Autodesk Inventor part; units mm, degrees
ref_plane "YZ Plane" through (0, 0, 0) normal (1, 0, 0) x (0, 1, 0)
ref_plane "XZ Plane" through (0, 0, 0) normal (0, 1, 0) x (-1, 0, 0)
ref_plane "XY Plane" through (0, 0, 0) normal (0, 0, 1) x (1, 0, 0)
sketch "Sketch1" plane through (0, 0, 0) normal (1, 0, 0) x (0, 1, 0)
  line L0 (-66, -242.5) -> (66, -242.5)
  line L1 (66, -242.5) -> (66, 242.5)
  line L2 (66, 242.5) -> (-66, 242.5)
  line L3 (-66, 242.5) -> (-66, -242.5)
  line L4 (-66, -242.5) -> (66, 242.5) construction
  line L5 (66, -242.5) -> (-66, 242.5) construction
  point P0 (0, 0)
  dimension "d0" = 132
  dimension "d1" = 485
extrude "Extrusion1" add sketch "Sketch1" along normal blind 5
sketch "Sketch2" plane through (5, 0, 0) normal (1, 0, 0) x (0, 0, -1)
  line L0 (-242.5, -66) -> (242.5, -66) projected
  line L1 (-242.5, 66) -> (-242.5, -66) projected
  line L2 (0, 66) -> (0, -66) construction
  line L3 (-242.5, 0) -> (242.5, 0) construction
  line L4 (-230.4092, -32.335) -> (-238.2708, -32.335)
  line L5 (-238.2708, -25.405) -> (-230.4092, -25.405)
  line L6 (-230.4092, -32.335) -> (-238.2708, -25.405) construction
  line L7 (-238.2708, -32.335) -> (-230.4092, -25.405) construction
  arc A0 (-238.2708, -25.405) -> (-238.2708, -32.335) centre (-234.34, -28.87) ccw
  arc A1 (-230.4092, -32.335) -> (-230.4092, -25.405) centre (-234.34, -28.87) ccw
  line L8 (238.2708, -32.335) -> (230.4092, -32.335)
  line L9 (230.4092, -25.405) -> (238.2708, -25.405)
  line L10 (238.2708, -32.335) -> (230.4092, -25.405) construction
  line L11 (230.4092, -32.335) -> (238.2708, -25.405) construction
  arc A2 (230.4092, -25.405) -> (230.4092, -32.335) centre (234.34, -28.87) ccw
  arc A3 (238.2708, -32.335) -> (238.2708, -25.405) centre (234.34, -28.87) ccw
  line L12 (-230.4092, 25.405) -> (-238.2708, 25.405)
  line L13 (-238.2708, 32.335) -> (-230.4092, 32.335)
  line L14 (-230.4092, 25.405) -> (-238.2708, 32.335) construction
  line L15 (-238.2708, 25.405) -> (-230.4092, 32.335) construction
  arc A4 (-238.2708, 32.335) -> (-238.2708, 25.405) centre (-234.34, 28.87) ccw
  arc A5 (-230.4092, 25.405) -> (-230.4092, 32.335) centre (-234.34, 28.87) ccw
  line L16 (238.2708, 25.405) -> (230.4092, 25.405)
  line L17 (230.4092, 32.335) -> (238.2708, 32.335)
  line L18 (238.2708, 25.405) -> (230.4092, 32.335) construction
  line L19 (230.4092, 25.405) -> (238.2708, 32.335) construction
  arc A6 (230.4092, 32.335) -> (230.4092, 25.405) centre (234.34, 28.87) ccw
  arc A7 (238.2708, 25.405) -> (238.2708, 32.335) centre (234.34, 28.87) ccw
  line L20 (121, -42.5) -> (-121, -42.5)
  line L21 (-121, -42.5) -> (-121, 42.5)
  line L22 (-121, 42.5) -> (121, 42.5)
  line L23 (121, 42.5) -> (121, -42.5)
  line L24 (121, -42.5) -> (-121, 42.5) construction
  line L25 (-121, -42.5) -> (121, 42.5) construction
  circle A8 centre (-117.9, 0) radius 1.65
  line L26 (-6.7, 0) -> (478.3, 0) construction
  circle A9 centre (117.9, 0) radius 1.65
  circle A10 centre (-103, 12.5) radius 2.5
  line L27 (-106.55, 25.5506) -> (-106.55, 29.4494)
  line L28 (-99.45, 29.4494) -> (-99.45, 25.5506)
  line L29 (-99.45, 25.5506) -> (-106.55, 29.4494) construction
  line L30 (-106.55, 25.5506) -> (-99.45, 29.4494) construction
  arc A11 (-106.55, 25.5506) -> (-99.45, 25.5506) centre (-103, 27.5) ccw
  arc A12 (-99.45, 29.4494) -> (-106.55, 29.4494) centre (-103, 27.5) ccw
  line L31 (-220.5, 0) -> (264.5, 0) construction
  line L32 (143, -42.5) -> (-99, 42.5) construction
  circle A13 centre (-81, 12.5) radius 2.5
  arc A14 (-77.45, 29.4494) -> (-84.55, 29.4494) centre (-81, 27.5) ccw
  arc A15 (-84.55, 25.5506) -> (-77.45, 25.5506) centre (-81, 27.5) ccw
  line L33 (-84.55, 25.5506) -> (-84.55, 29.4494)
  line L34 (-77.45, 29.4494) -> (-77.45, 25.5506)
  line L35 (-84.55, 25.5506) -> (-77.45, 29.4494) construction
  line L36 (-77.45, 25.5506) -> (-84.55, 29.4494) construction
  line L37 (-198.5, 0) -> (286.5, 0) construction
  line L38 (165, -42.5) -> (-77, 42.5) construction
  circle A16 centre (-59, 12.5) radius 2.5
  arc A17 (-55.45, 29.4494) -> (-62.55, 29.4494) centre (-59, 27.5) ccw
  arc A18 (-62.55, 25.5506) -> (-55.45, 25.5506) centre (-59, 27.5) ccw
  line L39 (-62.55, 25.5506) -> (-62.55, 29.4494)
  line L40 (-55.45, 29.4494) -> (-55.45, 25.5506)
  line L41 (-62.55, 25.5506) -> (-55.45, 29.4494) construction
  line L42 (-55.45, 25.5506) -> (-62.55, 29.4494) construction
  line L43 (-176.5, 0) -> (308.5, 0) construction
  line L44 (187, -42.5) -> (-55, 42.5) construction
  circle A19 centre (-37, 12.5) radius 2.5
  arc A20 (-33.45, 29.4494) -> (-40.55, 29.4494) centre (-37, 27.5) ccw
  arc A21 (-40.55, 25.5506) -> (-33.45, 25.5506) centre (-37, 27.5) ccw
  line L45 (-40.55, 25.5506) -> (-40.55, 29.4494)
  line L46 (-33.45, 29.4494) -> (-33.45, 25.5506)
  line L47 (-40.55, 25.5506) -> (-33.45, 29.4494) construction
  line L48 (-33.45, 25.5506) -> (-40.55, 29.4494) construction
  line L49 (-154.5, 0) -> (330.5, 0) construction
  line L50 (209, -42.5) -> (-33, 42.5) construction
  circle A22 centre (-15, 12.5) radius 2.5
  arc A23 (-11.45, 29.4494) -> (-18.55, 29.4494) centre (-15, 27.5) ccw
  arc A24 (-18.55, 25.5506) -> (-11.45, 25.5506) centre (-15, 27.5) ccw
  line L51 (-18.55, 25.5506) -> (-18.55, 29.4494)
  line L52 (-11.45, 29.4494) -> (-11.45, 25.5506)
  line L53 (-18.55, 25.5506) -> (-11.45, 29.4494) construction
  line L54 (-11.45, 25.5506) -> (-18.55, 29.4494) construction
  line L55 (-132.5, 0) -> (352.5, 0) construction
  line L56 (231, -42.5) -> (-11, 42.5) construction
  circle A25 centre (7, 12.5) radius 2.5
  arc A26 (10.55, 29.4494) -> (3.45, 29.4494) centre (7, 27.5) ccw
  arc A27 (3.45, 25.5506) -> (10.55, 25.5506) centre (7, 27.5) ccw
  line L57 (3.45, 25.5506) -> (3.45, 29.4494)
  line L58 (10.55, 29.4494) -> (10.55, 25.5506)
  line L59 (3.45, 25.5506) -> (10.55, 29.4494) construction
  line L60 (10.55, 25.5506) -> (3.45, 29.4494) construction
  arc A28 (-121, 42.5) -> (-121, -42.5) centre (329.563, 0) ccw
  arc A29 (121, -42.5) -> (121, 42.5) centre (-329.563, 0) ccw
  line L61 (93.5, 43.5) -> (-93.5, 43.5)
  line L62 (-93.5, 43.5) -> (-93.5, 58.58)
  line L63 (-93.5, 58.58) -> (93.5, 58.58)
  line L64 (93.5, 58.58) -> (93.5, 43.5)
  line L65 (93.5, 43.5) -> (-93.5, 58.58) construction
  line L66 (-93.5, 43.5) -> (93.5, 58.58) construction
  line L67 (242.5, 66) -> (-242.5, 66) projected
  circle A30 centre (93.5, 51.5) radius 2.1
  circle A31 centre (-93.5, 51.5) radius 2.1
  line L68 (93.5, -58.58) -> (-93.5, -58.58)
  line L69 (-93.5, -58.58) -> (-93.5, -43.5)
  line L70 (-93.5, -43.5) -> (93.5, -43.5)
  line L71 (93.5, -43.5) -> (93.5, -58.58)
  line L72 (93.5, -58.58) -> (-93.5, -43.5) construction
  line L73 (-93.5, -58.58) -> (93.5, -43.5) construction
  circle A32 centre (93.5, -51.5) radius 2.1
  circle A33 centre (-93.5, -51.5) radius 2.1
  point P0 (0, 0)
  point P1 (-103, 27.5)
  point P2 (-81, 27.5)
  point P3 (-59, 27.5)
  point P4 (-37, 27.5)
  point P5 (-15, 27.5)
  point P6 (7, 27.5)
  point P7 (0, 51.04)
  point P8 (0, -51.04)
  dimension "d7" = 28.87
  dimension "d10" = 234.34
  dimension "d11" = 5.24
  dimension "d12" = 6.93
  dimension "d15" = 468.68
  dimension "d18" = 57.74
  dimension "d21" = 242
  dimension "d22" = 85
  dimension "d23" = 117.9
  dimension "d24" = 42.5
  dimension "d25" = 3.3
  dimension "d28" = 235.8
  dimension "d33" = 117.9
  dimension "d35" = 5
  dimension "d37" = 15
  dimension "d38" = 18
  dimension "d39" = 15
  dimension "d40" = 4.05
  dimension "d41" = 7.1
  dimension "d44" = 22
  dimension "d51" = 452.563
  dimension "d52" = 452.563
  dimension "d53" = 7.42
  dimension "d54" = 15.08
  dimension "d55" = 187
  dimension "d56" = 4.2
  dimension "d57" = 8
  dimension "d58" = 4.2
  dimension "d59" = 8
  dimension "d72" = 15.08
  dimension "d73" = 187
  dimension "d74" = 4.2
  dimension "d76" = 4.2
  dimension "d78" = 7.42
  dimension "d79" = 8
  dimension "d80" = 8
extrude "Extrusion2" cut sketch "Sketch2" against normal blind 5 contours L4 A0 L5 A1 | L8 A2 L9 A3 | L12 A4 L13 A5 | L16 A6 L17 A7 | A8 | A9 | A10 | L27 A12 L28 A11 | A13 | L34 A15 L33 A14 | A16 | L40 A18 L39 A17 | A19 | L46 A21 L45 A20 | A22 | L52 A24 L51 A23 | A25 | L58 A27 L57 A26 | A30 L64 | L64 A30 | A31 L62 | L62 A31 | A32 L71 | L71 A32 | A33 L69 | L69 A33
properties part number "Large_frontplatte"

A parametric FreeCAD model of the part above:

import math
import FreeCAD as App
import Part
import Sketcher
Q = App.Units.Quantity


def add_polygon(sketch, points):
    """Adds a closed chain of lines whose ends are joined by coincident constraints."""
    first, n = sketch.GeometryCount, len(points)
    for a, b in zip(points, points[1:] + points[:1]):
        sketch.addGeometry(Part.LineSegment(App.Vector(*a, 0), App.Vector(*b, 0)), False)
    for i in range(n):
        sketch.addConstraint(Sketcher.Constraint("Coincident", first + i, 2, first + (i + 1) % n, 1))

doc = App.newDocument("Part")
body = doc.addObject("PartDesign::Body", "Body")

sketch1 = body.newObject("Sketcher::SketchObject", "Sketch")
sketch1.AttachmentSupport = (doc.getObject("YZ_Plane"), [""])
sketch1.MapMode = "FlatFace"
add_polygon(sketch1, [(-66, 242.5), (-66, -242.5), (66, -242.5), (66, 242.5)])
sketch1.addConstraint([
    Sketcher.Constraint("Vertical", 0),
    Sketcher.Constraint("Horizontal", 1),
    Sketcher.Constraint("Vertical", 2),
    Sketcher.Constraint("Horizontal", 3),
    Sketcher.Constraint("Symmetric", 0, 2, 2, 2, -1, 1),
    Sketcher.Constraint("DistanceX", 1, 1, 1, 2, Q("132 mm")),
    Sketcher.Constraint("DistanceY", 0, 2, 0, 1, Q("485 mm")),
])
pad1 = body.newObject("PartDesign::Pad", "Pad")
pad1.Profile = sketch1
pad1.Length = 5

sketch2 = body.newObject("Sketcher::SketchObject", "Sketch001")
sketch2.AttachmentSupport = (doc.getObject("YZ_Plane"), [""])
sketch2.MapMode = "FlatFace"
sketch2.AttachmentOffset = App.Placement(App.Vector(0, 0, 5), App.Rotation())
sketch2.addGeometry([
    Part.LineSegment(App.Vector(-32.335, 238.2708, 0), App.Vector(-32.335, 230.4092, 0)),
    Part.ArcOfCircle(Part.Circle(App.Vector(-28.87, 234.34, 0), App.Vector(0, 0, 1), 5.239982), math.radians(-131.396175), math.radians(-48.603825)),
    Part.LineSegment(App.Vector(-25.405, 230.4092, 0), App.Vector(-25.405, 238.2708, 0)),
    Part.ArcOfCircle(Part.Circle(App.Vector(-28.87, 234.34, 0), App.Vector(0, 0, 1), 5.239982), math.radians(48.603825), math.radians(131.396175)),
    Part.LineSegment(App.Vector(-32.335, -230.4092, 0), App.Vector(-32.335, -238.2708, 0)),
    Part.ArcOfCircle(Part.Circle(App.Vector(-28.87, -234.34, 0), App.Vector(0, 0, 1), 5.239982), math.radians(-131.396175), math.radians(-48.603825)),
    Part.LineSegment(App.Vector(-25.405, -238.2708, 0), App.Vector(-25.405, -230.4092, 0)),
    Part.ArcOfCircle(Part.Circle(App.Vector(-28.87, -234.34, 0), App.Vector(0, 0, 1), 5.239982), math.radians(48.603825), math.radians(131.396175)),
    Part.LineSegment(App.Vector(25.405, 238.2708, 0), App.Vector(25.405, 230.4092, 0)),
    Part.ArcOfCircle(Part.Circle(App.Vector(28.87, 234.34, 0), App.Vector(0, 0, 1), 5.239982), math.radians(-131.396175), math.radians(-48.603825)),
    Part.LineSegment(App.Vector(32.335, 230.4092, 0), App.Vector(32.335, 238.2708, 0)),
    Part.ArcOfCircle(Part.Circle(App.Vector(28.87, 234.34, 0), App.Vector(0, 0, 1), 5.239982), math.radians(48.603825), math.radians(131.396175)),
    Part.LineSegment(App.Vector(25.405, -230.4092, 0), App.Vector(25.405, -238.2708, 0)),
    Part.ArcOfCircle(Part.Circle(App.Vector(28.87, -234.34, 0), App.Vector(0, 0, 1), 5.239982), math.radians(-131.396175), math.radians(-48.603825)),
    Part.LineSegment(App.Vector(32.335, -238.2708, 0), App.Vector(32.335, -230.4092, 0)),
    Part.ArcOfCircle(Part.Circle(App.Vector(28.87, -234.34, 0), App.Vector(0, 0, 1), 5.239982), math.radians(48.603825), math.radians(131.396175)),
    Part.Circle(App.Vector(0, 117.9, 0), App.Vector(0, 0, 1), 1.65),
    Part.Circle(App.Vector(0, -117.9, 0), App.Vector(0, 0, 1), 1.65),
    Part.Circle(App.Vector(12.5, 103, 0), App.Vector(0, 0, 1), 2.5),
    Part.LineSegment(App.Vector(29.4494, 106.55, 0), App.Vector(25.5506, 106.55, 0)),
    Part.ArcOfCircle(Part.Circle(App.Vector(27.5, 103, 0), App.Vector(0, 0, 1), 4.05002), math.radians(118.772367), math.radians(241.227633)),
    Part.LineSegment(App.Vector(25.5506, 99.45, 0), App.Vector(29.4494, 99.45, 0)),
    Part.ArcOfCircle(Part.Circle(App.Vector(27.5, 103, 0), App.Vector(0, 0, 1), 4.05002), math.radians(-61.227633), math.radians(61.227633)),
    Part.Circle(App.Vector(12.5, 81, 0), App.Vector(0, 0, 1), 2.5),
    Part.LineSegment(App.Vector(25.5506, 77.45, 0), App.Vector(29.4494, 77.45, 0)),
    Part.ArcOfCircle(Part.Circle(App.Vector(27.5, 81, 0), App.Vector(0, 0, 1), 4.05002), math.radians(-61.227633), math.radians(61.227633)),
    Part.LineSegment(App.Vector(29.4494, 84.55, 0), App.Vector(25.5506, 84.55, 0)),
    Part.ArcOfCircle(Part.Circle(App.Vector(27.5, 81, 0), App.Vector(0, 0, 1), 4.05002), math.radians(118.772367), math.radians(241.227633)),
    Part.Circle(App.Vector(12.5, 59, 0), App.Vector(0, 0, 1), 2.5),
    Part.LineSegment(App.Vector(25.5506, 55.45, 0), App.Vector(29.4494, 55.45, 0)),
    Part.ArcOfCircle(Part.Circle(App.Vector(27.5, 59, 0), App.Vector(0, 0, 1), 4.05002), math.radians(-61.227633), math.radians(61.227633)),
    Part.LineSegment(App.Vector(29.4494, 62.55, 0), App.Vector(25.5506, 62.55, 0)),
    Part.ArcOfCircle(Part.Circle(App.Vector(27.5, 59, 0), App.Vector(0, 0, 1), 4.05002), math.radians(118.772367), math.radians(241.227633)),
    Part.Circle(App.Vector(12.5, 37, 0), App.Vector(0, 0, 1), 2.5),
    Part.LineSegment(App.Vector(25.5506, 33.45, 0), App.Vector(29.4494, 33.45, 0)),
    Part.ArcOfCircle(Part.Circle(App.Vector(27.5, 37, 0), App.Vector(0, 0, 1), 4.05002), math.radians(-61.227633), math.radians(61.227633)),
    Part.LineSegment(App.Vector(29.4494, 40.55, 0), App.Vector(25.5506, 40.55, 0)),
    Part.ArcOfCircle(Part.Circle(App.Vector(27.5, 37, 0), App.Vector(0, 0, 1), 4.05002), math.radians(118.772367), math.radians(241.227633)),
    Part.Circle(App.Vector(12.5, 15, 0), App.Vector(0, 0, 1), 2.5),
    Part.LineSegment(App.Vector(25.5506, 11.45, 0), App.Vector(29.4494, 11.45, 0)),
    Part.ArcOfCircle(Part.Circle(App.Vector(27.5, 15, 0), App.Vector(0, 0, 1), 4.05002), math.radians(-61.227633), math.radians(61.227633)),
    Part.LineSegment(App.Vector(29.4494, 18.55, 0), App.Vector(25.5506, 18.55, 0)),
    Part.ArcOfCircle(Part.Circle(App.Vector(27.5, 15, 0), App.Vector(0, 0, 1), 4.05002), math.radians(118.772367), math.radians(241.227633)),
    Part.Circle(App.Vector(12.5, -7, 0), App.Vector(0, 0, 1), 2.5),
    Part.LineSegment(App.Vector(25.5506, -10.55, 0), App.Vector(29.4494, -10.55, 0)),
    Part.ArcOfCircle(Part.Circle(App.Vector(27.5, -7, 0), App.Vector(0, 0, 1), 4.05002), math.radians(-61.227633), math.radians(61.227633)),
    Part.LineSegment(App.Vector(29.4494, -3.45, 0), App.Vector(25.5506, -3.45, 0)),
    Part.ArcOfCircle(Part.Circle(App.Vector(27.5, -7, 0), App.Vector(0, 0, 1), 4.05002), math.radians(118.772367), math.radians(241.227633)),
    Part.Circle(App.Vector(51.5, -93.5, 0), App.Vector(0, 0, 1), 2.1),
    Part.Circle(App.Vector(51.5, 93.5, 0), App.Vector(0, 0, 1), 2.1),
    Part.Circle(App.Vector(-51.5, -93.5, 0), App.Vector(0, 0, 1), 2.1),
    Part.Circle(App.Vector(-51.5, 93.5, 0), App.Vector(0, 0, 1), 2.1),
], False)
sketch2.addConstraint([
    Sketcher.Constraint("Coincident", 0, 2, 1, 1),
    Sketcher.Constraint("Coincident", 1, 2, 2, 1),
    Sketcher.Constraint("Coincident", 2, 2, 3, 1),
    Sketcher.Constraint("Coincident", 3, 2, 0, 1),
    Sketcher.Constraint("Coincident", 4, 2, 5, 1),
    Sketcher.Constraint("Coincident", 5, 2, 6, 1),
    Sketcher.Constraint("Coincident", 6, 2, 7, 1),
    Sketcher.Constraint("Coincident", 7, 2, 4, 1),
    Sketcher.Constraint("Coincident", 8, 2, 9, 1),
    Sketcher.Constraint("Coincident", 9, 2, 10, 1),
    Sketcher.Constraint("Coincident", 10, 2, 11, 1),
    Sketcher.Constraint("Coincident", 11, 2, 8, 1),
    Sketcher.Constraint("Coincident", 12, 2, 13, 1),
    Sketcher.Constraint("Coincident", 13, 2, 14, 1),
    Sketcher.Constraint("Coincident", 14, 2, 15, 1),
    Sketcher.Constraint("Coincident", 15, 2, 12, 1),
    Sketcher.Constraint("Coincident", 19, 2, 20, 1),
    Sketcher.Constraint("Coincident", 20, 2, 21, 1),
    Sketcher.Constraint("Coincident", 21, 2, 22, 1),
    Sketcher.Constraint("Coincident", 22, 2, 19, 1),
    Sketcher.Constraint("Coincident", 24, 2, 25, 1),
    Sketcher.Constraint("Coincident", 25, 2, 26, 1),
    Sketcher.Constraint("Coincident", 26, 2, 27, 1),
    Sketcher.Constraint("Coincident", 27, 2, 24, 1),
    Sketcher.Constraint("Coincident", 29, 2, 30, 1),
    Sketcher.Constraint("Coincident", 30, 2, 31, 1),
    Sketcher.Constraint("Coincident", 31, 2, 32, 1),
    Sketcher.Constraint("Coincident", 32, 2, 29, 1),
    Sketcher.Constraint("Coincident", 34, 2, 35, 1),
    Sketcher.Constraint("Coincident", 35, 2, 36, 1),
    Sketcher.Constraint("Coincident", 36, 2, 37, 1),
    Sketcher.Constraint("Coincident", 37, 2, 34, 1),
    Sketcher.Constraint("Coincident", 39, 2, 40, 1),
    Sketcher.Constraint("Coincident", 40, 2, 41, 1),
    Sketcher.Constraint("Coincident", 41, 2, 42, 1),
    Sketcher.Constraint("Coincident", 42, 2, 39, 1),
    Sketcher.Constraint("Coincident", 44, 2, 45, 1),
    Sketcher.Constraint("Coincident", 45, 2, 46, 1),
    Sketcher.Constraint("Coincident", 46, 2, 47, 1),
    Sketcher.Constraint("Coincident", 47, 2, 44, 1),
    Sketcher.Constraint("Vertical", 0),
    Sketcher.Constraint("Vertical", 2),
    Sketcher.Constraint("Vertical", 4),
    Sketcher.Constraint("Vertical", 6),
    Sketcher.Constraint("Vertical", 8),
    Sketcher.Constraint("Vertical", 10),
    Sketcher.Constraint("Vertical", 12),
    Sketcher.Constraint("Vertical", 14),
    Sketcher.Constraint("Horizontal", 19),
    Sketcher.Constraint("Horizontal", 21),
    Sketcher.Constraint("Horizontal", 24),
    Sketcher.Constraint("Horizontal", 26),
    Sketcher.Constraint("Horizontal", 29),
    Sketcher.Constraint("Horizontal", 31),
    Sketcher.Constraint("Horizontal", 34),
    Sketcher.Constraint("Horizontal", 36),
    Sketcher.Constraint("Horizontal", 39),
    Sketcher.Constraint("Horizontal", 41),
    Sketcher.Constraint("Horizontal", 44),
    Sketcher.Constraint("Horizontal", 46),
    Sketcher.Constraint("Coincident", 3, 3, 1, 3),
    Sketcher.Constraint("Coincident", 7, 3, 5, 3),
    Sketcher.Constraint("Coincident", 11, 3, 9, 3),
    Sketcher.Constraint("Coincident", 15, 3, 13, 3),
    Sketcher.Constraint("Coincident", 22, 3, 20, 3),
    Sketcher.Constraint("Coincident", 27, 3, 25, 3),
    Sketcher.Constraint("Coincident", 32, 3, 30, 3),
    Sketcher.Constraint("Coincident", 37, 3, 35, 3),
    Sketcher.Constraint("Coincident", 42, 3, 40, 3),
    Sketcher.Constraint("Coincident", 47, 3, 45, 3),
    Sketcher.Constraint("Equal", 1, 3),
    Sketcher.Constraint("Equal", 3, 5),
    Sketcher.Constraint("Equal", 5, 7),
    Sketcher.Constraint("Equal", 7, 9),
    Sketcher.Constraint("Equal", 9, 11),
    Sketcher.Constraint("Equal", 11, 13),
    Sketcher.Constraint("Equal", 13, 15),
    Sketcher.Constraint("Equal", 16, 17),
    Sketcher.Constraint("Equal", 20, 22),
    Sketcher.Constraint("Equal", 18, 23),
    Sketcher.Constraint("Equal", 22, 25),
    Sketcher.Constraint("Equal", 25, 27),
    Sketcher.Constraint("Equal", 23, 28),
    Sketcher.Constraint("Equal", 27, 30),
    Sketcher.Constraint("Equal", 30, 32),
    Sketcher.Constraint("Equal", 28, 33),
    Sketcher.Constraint("Equal", 32, 35),
    Sketcher.Constraint("Equal", 35, 37),
    Sketcher.Constraint("Equal", 33, 38),
    Sketcher.Constraint("Equal", 37, 40),
    Sketcher.Constraint("Equal", 40, 42),
    Sketcher.Constraint("Equal", 38, 43),
    Sketcher.Constraint("Equal", 42, 45),
    Sketcher.Constraint("Equal", 45, 47),
    Sketcher.Constraint("Equal", 48, 49),
    Sketcher.Constraint("Equal", 49, 50),
    Sketcher.Constraint("Equal", 50, 51),
    Sketcher.Constraint("Symmetric", 5, 3, 9, 3, -1, 1),
    Sketcher.Constraint("Symmetric", 1, 3, 13, 3, -1, 1),
    Sketcher.Constraint("Symmetric", 16, 3, 17, 3, -1, 1),
    Sketcher.Constraint("Symmetric", 49, 3, 50, 3, -1, 1),
    Sketcher.Constraint("Symmetric", 48, 3, 51, 3, -1, 1),
    Sketcher.Constraint("Symmetric", 1, 3, 9, 3, -2),
    Sketcher.Constraint("Symmetric", 48, 3, 50, 3, -2),
    Sketcher.Constraint("PointOnObject", 16, 3, -2),
    Sketcher.Constraint("Horizontal", 18, 3, 20, 3),
    Sketcher.Constraint("Horizontal", 23, 3, 25, 3),
    Sketcher.Constraint("Horizontal", 28, 3, 30, 3),
    Sketcher.Constraint("Horizontal", 33, 3, 35, 3),
    Sketcher.Constraint("Horizontal", 38, 3, 40, 3),
    Sketcher.Constraint("Horizontal", 43, 3, 45, 3),
    Sketcher.Constraint("Horizontal", 0, 2, 1, 2),
    Sketcher.Constraint("Horizontal", 4, 2, 5, 2),
    Sketcher.Constraint("Horizontal", 1, 2, 8, 2),
    Sketcher.Constraint("Horizontal", 8, 2, 9, 2),
    Sketcher.Constraint("Horizontal", 5, 2, 12, 2),
    Sketcher.Constraint("Horizontal", 12, 2, 13, 2),
    Sketcher.Constraint("Vertical", 18, 3, 23, 3),
    Sketcher.Constraint("Vertical", 22, 3, 25, 3),
    Sketcher.Constraint("Vertical", 23, 3, 28, 3),
    Sketcher.Constraint("Vertical", 27, 3, 30, 3),
    Sketcher.Constraint("Vertical", 28, 3, 33, 3),
    Sketcher.Constraint("Vertical", 32, 3, 35, 3),
    Sketcher.Constraint("Vertical", 33, 3, 38, 3),
    Sketcher.Constraint("Vertical", 37, 3, 40, 3),
    Sketcher.Constraint("Vertical", 38, 3, 43, 3),
    Sketcher.Constraint("Vertical", 42, 3, 45, 3),
    Sketcher.Constraint("Vertical", 3, 2, 4, 2),
    Sketcher.Constraint("Vertical", 19, 2, 20, 2),
    Sketcher.Constraint("Vertical", 22, 2, 24, 2),
    Sketcher.Constraint("Vertical", 24, 2, 25, 2),
    Sketcher.Constraint("Vertical", 25, 2, 29, 2),
    Sketcher.Constraint("Vertical", 29, 2, 30, 2),
    Sketcher.Constraint("Vertical", 30, 2, 34, 2),
    Sketcher.Constraint("Vertical", 34, 2, 35, 2),
    Sketcher.Constraint("Vertical", 35, 2, 39, 2),
    Sketcher.Constraint("Vertical", 39, 2, 40, 2),
    Sketcher.Constraint("Vertical", 40, 2, 44, 2),
    Sketcher.Constraint("Vertical", 44, 2, 45, 2),
    Sketcher.Constraint("Diameter", 18, Q("5 mm")),
    Sketcher.Constraint("Diameter", 16, Q("3.3 mm")),
    Sketcher.Constraint("Diameter", 48, Q("4.2 mm")),
    Sketcher.Constraint("Radius", 1, Q("5.24 mm")),
    Sketcher.Constraint("Radius", 20, Q("4.05 mm")),
    Sketcher.Constraint("DistanceY", -1, 1, 38, 3, Q("15 mm")),
    Sketcher.Constraint("DistanceY", -1, 1, 16, 3, Q("117.9 mm")),
    Sketcher.Constraint("DistanceX", 1, 3, -1, 1, Q("28.87 mm")),
    Sketcher.Constraint("DistanceY", -1, 1, 1, 3, Q("234.34 mm")),
    Sketcher.Constraint("DistanceY", -1, 1, 18, 3, Q("103 mm")),
    Sketcher.Constraint("DistanceY", -1, 1, 23, 3, Q("81 mm")),
    Sketcher.Constraint("DistanceY", -1, 1, 28, 3, Q("59 mm")),
    Sketcher.Constraint("DistanceY", -1, 1, 33, 3, Q("37 mm")),
    Sketcher.Constraint("DistanceY", 43, 3, -1, 1, Q("7 mm")),
    Sketcher.Constraint("DistanceX", -1, 1, 18, 3, Q("12.5 mm")),
    Sketcher.Constraint("DistanceX", -1, 1, 20, 3, Q("27.5 mm")),
    Sketcher.Constraint("DistanceX", -1, 1, 48, 3, Q("51.5 mm")),
    Sketcher.Constraint("DistanceY", 48, 3, -1, 1, Q("93.5 mm")),
    Sketcher.Constraint("DistanceY", -1, 1, 19, 2, Q("106.55 mm")),
    Sketcher.Constraint("DistanceY", 0, 2, 0, 1, Q("7.8616 mm")),
])
pocket1 = body.newObject("PartDesign::Pocket", "Pocket")
pocket1.Profile = sketch2
pocket1.Length = 5

doc.recompute()
